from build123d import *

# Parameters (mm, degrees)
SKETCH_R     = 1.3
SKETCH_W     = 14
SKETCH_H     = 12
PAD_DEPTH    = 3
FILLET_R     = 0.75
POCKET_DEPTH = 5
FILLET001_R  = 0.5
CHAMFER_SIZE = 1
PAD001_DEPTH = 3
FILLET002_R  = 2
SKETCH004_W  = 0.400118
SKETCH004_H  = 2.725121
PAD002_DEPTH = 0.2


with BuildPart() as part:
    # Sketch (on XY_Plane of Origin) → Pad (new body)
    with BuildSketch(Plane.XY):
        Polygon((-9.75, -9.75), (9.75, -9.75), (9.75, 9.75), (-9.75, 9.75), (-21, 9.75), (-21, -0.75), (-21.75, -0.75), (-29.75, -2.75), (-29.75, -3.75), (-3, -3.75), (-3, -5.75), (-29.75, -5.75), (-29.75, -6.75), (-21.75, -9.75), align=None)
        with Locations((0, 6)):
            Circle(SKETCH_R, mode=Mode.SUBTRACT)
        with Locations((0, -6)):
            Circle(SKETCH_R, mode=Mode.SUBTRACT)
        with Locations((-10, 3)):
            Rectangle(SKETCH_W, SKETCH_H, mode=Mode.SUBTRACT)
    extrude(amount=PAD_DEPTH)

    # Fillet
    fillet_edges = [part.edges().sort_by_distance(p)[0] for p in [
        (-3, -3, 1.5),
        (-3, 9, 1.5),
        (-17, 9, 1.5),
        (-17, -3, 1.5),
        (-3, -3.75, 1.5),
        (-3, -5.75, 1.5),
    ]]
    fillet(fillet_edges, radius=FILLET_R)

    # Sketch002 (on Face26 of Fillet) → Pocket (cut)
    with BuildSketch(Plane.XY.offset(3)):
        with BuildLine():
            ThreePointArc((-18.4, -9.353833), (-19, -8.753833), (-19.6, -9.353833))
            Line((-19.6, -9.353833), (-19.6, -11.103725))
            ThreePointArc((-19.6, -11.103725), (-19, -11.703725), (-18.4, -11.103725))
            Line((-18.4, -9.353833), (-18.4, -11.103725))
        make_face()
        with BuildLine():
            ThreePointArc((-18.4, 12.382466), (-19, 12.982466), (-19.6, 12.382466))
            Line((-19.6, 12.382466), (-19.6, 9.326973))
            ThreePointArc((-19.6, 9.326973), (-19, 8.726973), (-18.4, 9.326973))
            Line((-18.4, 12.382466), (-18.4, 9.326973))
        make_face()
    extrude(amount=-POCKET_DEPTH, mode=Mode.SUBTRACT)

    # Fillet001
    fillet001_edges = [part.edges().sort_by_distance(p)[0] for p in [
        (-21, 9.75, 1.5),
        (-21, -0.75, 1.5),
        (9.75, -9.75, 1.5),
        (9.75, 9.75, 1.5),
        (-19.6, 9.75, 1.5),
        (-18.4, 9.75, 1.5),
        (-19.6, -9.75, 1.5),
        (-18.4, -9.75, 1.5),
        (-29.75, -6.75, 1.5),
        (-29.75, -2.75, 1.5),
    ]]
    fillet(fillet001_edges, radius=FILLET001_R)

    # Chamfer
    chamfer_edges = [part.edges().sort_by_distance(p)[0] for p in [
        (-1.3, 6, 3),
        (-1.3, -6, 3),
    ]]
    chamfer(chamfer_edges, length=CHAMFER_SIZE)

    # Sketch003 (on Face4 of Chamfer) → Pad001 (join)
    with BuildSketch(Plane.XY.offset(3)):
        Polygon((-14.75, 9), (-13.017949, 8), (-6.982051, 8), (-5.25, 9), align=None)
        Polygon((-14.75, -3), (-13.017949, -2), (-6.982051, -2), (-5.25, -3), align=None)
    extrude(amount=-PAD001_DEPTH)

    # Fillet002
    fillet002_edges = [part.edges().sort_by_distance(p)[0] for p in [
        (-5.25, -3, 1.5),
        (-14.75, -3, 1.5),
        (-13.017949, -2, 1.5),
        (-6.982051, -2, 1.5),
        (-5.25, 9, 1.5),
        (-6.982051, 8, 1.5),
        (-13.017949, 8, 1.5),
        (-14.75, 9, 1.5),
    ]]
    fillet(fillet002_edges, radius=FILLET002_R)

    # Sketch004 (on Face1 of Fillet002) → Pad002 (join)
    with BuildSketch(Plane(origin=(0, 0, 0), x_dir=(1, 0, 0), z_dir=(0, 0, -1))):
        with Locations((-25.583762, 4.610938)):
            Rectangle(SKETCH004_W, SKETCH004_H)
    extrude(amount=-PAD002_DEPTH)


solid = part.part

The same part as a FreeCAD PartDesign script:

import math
import FreeCAD as App
import Part
import Sketcher
Q = App.Units.Quantity


def edges_at(feature, points):
    """Names of the edges that pass closest to the given points."""
    edges = feature.Shape.Edges
    near = lambda p: min(range(len(edges)), key=lambda i: edges[i].distToShape(Part.Vertex(*p))[0])
    return sorted({f"Edge{near(p) + 1}" for p in points})


def add_polygon(sketch, points):
    """Adds a closed chain of lines whose ends are joined by coincident constraints."""
    first, n = sketch.GeometryCount, len(points)
    for a, b in zip(points, points[1:] + points[:1]):
        sketch.addGeometry(Part.LineSegment(App.Vector(*a, 0), App.Vector(*b, 0)), False)
    for i in range(n):
        sketch.addConstraint(Sketcher.Constraint("Coincident", first + i, 2, first + (i + 1) % n, 1))

doc = App.newDocument("Part")
body = doc.addObject("PartDesign::Body", "Body")

sketch1 = doc.addObject("Sketcher::SketchObject", "Sketch")
body.addObject(sketch1)
sketch1.AttachmentSupport = (doc.XY_Plane, [""])
sketch1.MapMode = "FlatFace"
add_polygon(sketch1, [(9.75, -9.75), (9.75, 9.75), (-21, 9.75), (-21, -0.75), (-21.75, -0.75), (-29.75, -2.75), (-29.75, -3.75), (-3, -3.75), (-3, -5.75), (-29.75, -5.75), (-29.75, -6.75), (-21.75, -9.75)])
sketch1.addGeometry(Part.Circle(App.Vector(0, -6, 0), App.Vector(0, 0, 1), 1.3), False)
add_polygon(sketch1, [(-3, -3), (-17, -3), (-17, 9), (-3, 9)])
sketch1.addGeometry(Part.Circle(App.Vector(0, 6, 0), App.Vector(0, 0, 1), 1.3), False)
sketch1.addConstraint([
    Sketcher.Constraint("Vertical", 0),
    Sketcher.Constraint("Horizontal", 1),
    Sketcher.Constraint("Vertical", 2),
    Sketcher.Constraint("Horizontal", 3),
    Sketcher.Constraint("Vertical", 5),
    Sketcher.Constraint("Horizontal", 6),
    Sketcher.Constraint("Vertical", 7),
    Sketcher.Constraint("Horizontal", 8),
    Sketcher.Constraint("Vertical", 9),
    Sketcher.Constraint("Horizontal", 11),
    Sketcher.Constraint("Horizontal", 13),
    Sketcher.Constraint("Vertical", 14),
    Sketcher.Constraint("Horizontal", 15),
    Sketcher.Constraint("Vertical", 16),
    Sketcher.Constraint("Equal", 12, 17),
    Sketcher.Constraint("Symmetric", 12, 3, 17, 3, -1, 1),
    Sketcher.Constraint("PointOnObject", 12, 3, -2),
    Sketcher.Constraint("Vertical", 5, 2, 8, 2),
    Sketcher.Constraint("Vertical", 3, 2, 10, 2),
    Sketcher.Constraint("Vertical", 7, 2, 15, 2),
    Sketcher.Constraint("Equal", 5, 9),
    Sketcher.Constraint("Diameter", 12, Q("2.6 mm")),
    Sketcher.Constraint("DistanceX", 13, 2, 13, 1, Q("14 mm")),
    Sketcher.Constraint("DistanceY", 5, 2, 5, 1, Q("1 mm")),
    Sketcher.Constraint("DistanceY", 7, 2, 7, 1, Q("2 mm")),
    Sketcher.Constraint("DistanceY", 14, 1, 14, 2, Q("12 mm")),
    Sketcher.Constraint("DistanceX", 11, 1, 11, 2, Q("31.5 mm")),
    Sketcher.Constraint("DistanceY", 0, 1, 0, 2, Q("19.5 mm")),
    Sketcher.Constraint("DistanceY", 2, 2, 2, 1, Q("10.5 mm")),
    Sketcher.Constraint("DistanceY", 12, 3, -1, 1, Q("6 mm")),
    Sketcher.Constraint("DistanceX", 1, 2, -1, 1, Q("21 mm")),
    Sketcher.Constraint("DistanceX", 6, 2, -1, 1, Q("3 mm")),
    Sketcher.Constraint("DistanceY", 13, 2, -1, 1, Q("3 mm")),
    Sketcher.Constraint("DistanceX", 4, 2, 3, 2, Q("8 mm")),
    Sketcher.Constraint("DistanceY", 4, 2, 3, 2, Q("2 mm")),
    Sketcher.Constraint("DistanceX", 1, 2, 1, 1, Q("30.75 mm")),
    Sketcher.Constraint("DistanceY", -1, 1, 0, 2, Q("9.75 mm")),
])
pad1 = doc.addObject("PartDesign::Pad", "Pad")
body.addObject(pad1)
pad1.Profile = sketch1
pad1.Length = 3
doc.recompute()

fillet = doc.addObject("PartDesign::Fillet", "Fillet")
body.addObject(fillet)
fillet.Base = (pad1, edges_at(pad1, [
    (-3, -3, 1.5),
    (-3, 9, 1.5),
    (-17, 9, 1.5),
    (-17, -3, 1.5),
    (-3, -3.75, 1.5),
    (-3, -5.75, 1.5),
]))
fillet.Radius = 0.75

sketch2 = doc.addObject("Sketcher::SketchObject", "Sketch001")
body.addObject(sketch2)
sketch2.AttachmentSupport = (doc.XY_Plane, [""])
sketch2.MapMode = "FlatFace"
sketch2.AttachmentOffset = App.Placement(App.Vector(0, 0, 3), App.Rotation())
sketch2.addGeometry([
    Part.ArcOfCircle(Part.Circle(App.Vector(-19, -9.353833, 0), App.Vector(0, 0, 1), 0.6), math.radians(0), math.radians(180)),
    Part.LineSegment(App.Vector(-19.6, -9.353833, 0), App.Vector(-19.6, -11.103725, 0)),
    Part.ArcOfCircle(Part.Circle(App.Vector(-19, -11.103725, 0), App.Vector(0, 0, 1), 0.6), math.radians(180), math.radians(360)),
    Part.LineSegment(App.Vector(-18.4, -11.103725, 0), App.Vector(-18.4, -9.353833, 0)),
    Part.ArcOfCircle(Part.Circle(App.Vector(-19, 12.382466, 0), App.Vector(0, 0, 1), 0.6), math.radians(0), math.radians(180)),
    Part.LineSegment(App.Vector(-19.6, 12.382466, 0), App.Vector(-19.6, 9.326973, 0)),
    Part.ArcOfCircle(Part.Circle(App.Vector(-19, 9.326973, 0), App.Vector(0, 0, 1), 0.6), math.radians(180), math.radians(360)),
    Part.LineSegment(App.Vector(-18.4, 9.326973, 0), App.Vector(-18.4, 12.382466, 0)),
], False)
sketch2.addConstraint([
    Sketcher.Constraint("Tangent", 0, 2, 1, 1),
    Sketcher.Constraint("Tangent", 1, 2, 2, 1),
    Sketcher.Constraint("Tangent", 2, 2, 3, 1),
    Sketcher.Constraint("Tangent", 3, 2, 0, 1),
    Sketcher.Constraint("Tangent", 4, 2, 5, 1),
    Sketcher.Constraint("Tangent", 5, 2, 6, 1),
    Sketcher.Constraint("Tangent", 6, 2, 7, 1),
    Sketcher.Constraint("Tangent", 7, 2, 4, 1),
    Sketcher.Constraint("Vertical", 1),
    Sketcher.Constraint("Vertical", 3),
    Sketcher.Constraint("Vertical", 5),
    Sketcher.Constraint("Vertical", 7),
    Sketcher.Constraint("Equal", 2, 4),
    Sketcher.Constraint("Vertical", 2, 3, 4, 3),
    Sketcher.Constraint("Radius", 0, Q("0.6 mm")),
    Sketcher.Constraint("DistanceX", 0, 3, -1, 1, Q("19 mm")),
    Sketcher.Constraint("DistanceY", 0, 3, 4, 3, Q("21.736299 mm")),
    Sketcher.Constraint("DistanceY", 1, 2, 1, 1, Q("1.749892 mm")),
    Sketcher.Constraint("DistanceY", 5, 2, 5, 1, Q("3.055493 mm")),
    Sketcher.Constraint("DistanceY", 0, 3, -1, 1, Q("9.353833 mm")),
])
pocket1 = doc.addObject("PartDesign::Pocket", "Pocket")
body.addObject(pocket1)
pocket1.Profile = sketch2
pocket1.Length = 5
doc.recompute()

fillet2 = doc.addObject("PartDesign::Fillet", "Fillet001")
body.addObject(fillet2)
fillet2.Base = (pocket1, edges_at(pocket1, [
    (-21, 9.75, 1.5),
    (-21, -0.75, 1.5),
    (9.75, -9.75, 1.5),
    (9.75, 9.75, 1.5),
    (-19.6, 9.75, 1.5),
    (-18.4, 9.75, 1.5),
    (-19.6, -9.75, 1.5),
    (-18.4, -9.75, 1.5),
    (-29.75, -6.75, 1.5),
    (-29.75, -2.75, 1.5),
]))
fillet2.Radius = 0.5
doc.recompute()

chamfer = doc.addObject("PartDesign::Chamfer", "Chamfer")
body.addObject(chamfer)
chamfer.Base = (fillet2, edges_at(fillet2, [(-1.3, 6, 3), (-1.3, -6, 3)]))
chamfer.Size = 1

sketch3 = doc.addObject("Sketcher::SketchObject", "Sketch002")
body.addObject(sketch3)
sketch3.AttachmentSupport = (doc.XY_Plane, [""])
sketch3.MapMode = "FlatFace"
sketch3.AttachmentOffset = App.Placement(App.Vector(0, 0, 3), App.Rotation())
add_polygon(sketch3, [(-14.75, 9), (-13.017949, 8), (-6.982051, 8), (-5.25, 9)])
add_polygon(sketch3, [(-13.017949, -2), (-14.75, -3), (-5.25, -3), (-6.982051, -2)])
sketch3.addConstraint([
    Sketcher.Constraint("Horizontal", 1),
    Sketcher.Constraint("Horizontal", 3),
    Sketcher.Constraint("Horizontal", 5),
    Sketcher.Constraint("Horizontal", 7),
    Sketcher.Constraint("Parallel", 2, 4),
    Sketcher.Constraint("Parallel", 0, 6),
    Sketcher.Constraint("Vertical", 3, 2, 4, 2),
    Sketcher.Constraint("Vertical", 2, 2, 5, 2),
    Sketcher.Constraint("Vertical", 1, 2, 6, 2),
    Sketcher.Constraint("Vertical", 0, 2, 7, 2),
    Sketcher.Constraint("Angle", 0, Q("-29.999997 deg")),
    Sketcher.Constraint("Distance", 0, Q("2 mm")),
    Sketcher.Constraint("DistanceX", 3, 2, 3, 1, Q("9.5 mm")),
    Sketcher.Constraint("DistanceY", -1, 1, 0, 2, Q("8 mm")),
    Sketcher.Constraint("DistanceY", 4, 2, -1, 1, Q("3 mm")),
    Sketcher.Constraint("DistanceX", 2, 2, -1, 1, Q("5.25 mm")),
])
pad2 = doc.addObject("PartDesign::Pad", "Pad001")
body.addObject(pad2)
pad2.Profile = sketch3
pad2.Length = 3
pad2.Reversed = True
doc.recompute()

fillet3 = doc.addObject("PartDesign::Fillet", "Fillet002")
body.addObject(fillet3)
fillet3.Base = (pad2, edges_at(pad2, [
    (-5.25, -3, 1.5),
    (-14.75, -3, 1.5),
    (-13.018, -2, 1.5),
    (-6.982, -2, 1.5),
    (-5.25, 9, 1.5),
    (-6.982, 8, 1.5),
    (-13.018, 8, 1.5),
    (-14.75, 9, 1.5),
]))
fillet3.Radius = 2

sketch4 = doc.addObject("Sketcher::SketchObject", "Sketch003")
body.addObject(sketch4)
sketch4.AttachmentSupport = (doc.XY_Plane, [""])
sketch4.MapMode = "FlatFace"
add_polygon(sketch4, [(-25.783821, -5.973498), (-25.783821, -3.248378), (-25.383703, -3.248378), (-25.383703, -5.973498)])
sketch4.addConstraint([
    Sketcher.Constraint("Vertical", 0),
    Sketcher.Constraint("Horizontal", 1),
    Sketcher.Constraint("Vertical", 2),
    Sketcher.Constraint("Horizontal", 3),
    Sketcher.Constraint("DistanceY", 0, 1, 0, 2, Q("2.725121 mm")),
    Sketcher.Constraint("DistanceY", 2, 2, -1, 1, Q("5.973498 mm")),
    Sketcher.Constraint("DistanceX", 1, 1, 1, 2, Q("0.400118 mm")),
    Sketcher.Constraint("DistanceX", 0, 2, -1, 1, Q("25.783821 mm")),
])
pad3 = doc.addObject("PartDesign::Pad", "Pad002")
body.addObject(pad3)
pad3.Profile = sketch4
pad3.Length = 0.2

doc.recompute()
